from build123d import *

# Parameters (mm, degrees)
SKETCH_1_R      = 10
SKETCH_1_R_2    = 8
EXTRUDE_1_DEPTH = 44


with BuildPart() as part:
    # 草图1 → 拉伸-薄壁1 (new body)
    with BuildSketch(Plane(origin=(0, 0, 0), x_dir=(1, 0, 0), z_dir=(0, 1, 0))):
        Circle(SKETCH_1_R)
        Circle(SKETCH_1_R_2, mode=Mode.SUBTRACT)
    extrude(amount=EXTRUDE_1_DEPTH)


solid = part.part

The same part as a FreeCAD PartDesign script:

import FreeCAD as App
import Part
import Sketcher
Q = App.Units.Quantity

doc = App.newDocument("Part")
params = doc.addObject("Spreadsheet::Sheet", "Params")
for row, (alias, value) in enumerate([
    ("sketch1_diameter", "20 mm"),
    ("sketch1_diameter2", "16 mm"),
    ("pad1_length", "44 mm"),
], start=1):
    params.set(f"A{row}", alias)
    params.set(f"B{row}", "=" + value)
    params.setAlias(f"B{row}", alias)

body = doc.addObject("PartDesign::Body", "Body")

# Sketch on XZ plane
sketch1 = body.newObject("Sketcher::SketchObject", "Sketch")
sketch1.AttachmentSupport = (doc.getObject("XZ_Plane"), [""])
sketch1.MapMode = "FlatFace"
sketch1.addGeometry([
    Part.Circle(App.Vector(0, 0, 0), App.Vector(0, 0, 1), 10),
    Part.Circle(App.Vector(0, 0, 0), App.Vector(0, 0, 1), 8),
], False)
sketch1.addConstraint([
    Sketcher.Constraint("Coincident", 0, 3, -1, 1),
    Sketcher.Constraint("Coincident", 1, 3, -1, 1),
    Sketcher.Constraint("Diameter", 0, Q("20 mm")),
    Sketcher.Constraint("Diameter", 1, Q("16 mm")),
])
sketch1.setExpression("Constraints[2]", "Params.sketch1_diameter")
sketch1.setExpression("Constraints[3]", "Params.sketch1_diameter2")
pad1 = body.newObject("PartDesign::Pad", "Pad")
pad1.Profile = sketch1
pad1.setExpression("Length", "Params.pad1_length")
pad1.Reversed = True

doc.recompute()
